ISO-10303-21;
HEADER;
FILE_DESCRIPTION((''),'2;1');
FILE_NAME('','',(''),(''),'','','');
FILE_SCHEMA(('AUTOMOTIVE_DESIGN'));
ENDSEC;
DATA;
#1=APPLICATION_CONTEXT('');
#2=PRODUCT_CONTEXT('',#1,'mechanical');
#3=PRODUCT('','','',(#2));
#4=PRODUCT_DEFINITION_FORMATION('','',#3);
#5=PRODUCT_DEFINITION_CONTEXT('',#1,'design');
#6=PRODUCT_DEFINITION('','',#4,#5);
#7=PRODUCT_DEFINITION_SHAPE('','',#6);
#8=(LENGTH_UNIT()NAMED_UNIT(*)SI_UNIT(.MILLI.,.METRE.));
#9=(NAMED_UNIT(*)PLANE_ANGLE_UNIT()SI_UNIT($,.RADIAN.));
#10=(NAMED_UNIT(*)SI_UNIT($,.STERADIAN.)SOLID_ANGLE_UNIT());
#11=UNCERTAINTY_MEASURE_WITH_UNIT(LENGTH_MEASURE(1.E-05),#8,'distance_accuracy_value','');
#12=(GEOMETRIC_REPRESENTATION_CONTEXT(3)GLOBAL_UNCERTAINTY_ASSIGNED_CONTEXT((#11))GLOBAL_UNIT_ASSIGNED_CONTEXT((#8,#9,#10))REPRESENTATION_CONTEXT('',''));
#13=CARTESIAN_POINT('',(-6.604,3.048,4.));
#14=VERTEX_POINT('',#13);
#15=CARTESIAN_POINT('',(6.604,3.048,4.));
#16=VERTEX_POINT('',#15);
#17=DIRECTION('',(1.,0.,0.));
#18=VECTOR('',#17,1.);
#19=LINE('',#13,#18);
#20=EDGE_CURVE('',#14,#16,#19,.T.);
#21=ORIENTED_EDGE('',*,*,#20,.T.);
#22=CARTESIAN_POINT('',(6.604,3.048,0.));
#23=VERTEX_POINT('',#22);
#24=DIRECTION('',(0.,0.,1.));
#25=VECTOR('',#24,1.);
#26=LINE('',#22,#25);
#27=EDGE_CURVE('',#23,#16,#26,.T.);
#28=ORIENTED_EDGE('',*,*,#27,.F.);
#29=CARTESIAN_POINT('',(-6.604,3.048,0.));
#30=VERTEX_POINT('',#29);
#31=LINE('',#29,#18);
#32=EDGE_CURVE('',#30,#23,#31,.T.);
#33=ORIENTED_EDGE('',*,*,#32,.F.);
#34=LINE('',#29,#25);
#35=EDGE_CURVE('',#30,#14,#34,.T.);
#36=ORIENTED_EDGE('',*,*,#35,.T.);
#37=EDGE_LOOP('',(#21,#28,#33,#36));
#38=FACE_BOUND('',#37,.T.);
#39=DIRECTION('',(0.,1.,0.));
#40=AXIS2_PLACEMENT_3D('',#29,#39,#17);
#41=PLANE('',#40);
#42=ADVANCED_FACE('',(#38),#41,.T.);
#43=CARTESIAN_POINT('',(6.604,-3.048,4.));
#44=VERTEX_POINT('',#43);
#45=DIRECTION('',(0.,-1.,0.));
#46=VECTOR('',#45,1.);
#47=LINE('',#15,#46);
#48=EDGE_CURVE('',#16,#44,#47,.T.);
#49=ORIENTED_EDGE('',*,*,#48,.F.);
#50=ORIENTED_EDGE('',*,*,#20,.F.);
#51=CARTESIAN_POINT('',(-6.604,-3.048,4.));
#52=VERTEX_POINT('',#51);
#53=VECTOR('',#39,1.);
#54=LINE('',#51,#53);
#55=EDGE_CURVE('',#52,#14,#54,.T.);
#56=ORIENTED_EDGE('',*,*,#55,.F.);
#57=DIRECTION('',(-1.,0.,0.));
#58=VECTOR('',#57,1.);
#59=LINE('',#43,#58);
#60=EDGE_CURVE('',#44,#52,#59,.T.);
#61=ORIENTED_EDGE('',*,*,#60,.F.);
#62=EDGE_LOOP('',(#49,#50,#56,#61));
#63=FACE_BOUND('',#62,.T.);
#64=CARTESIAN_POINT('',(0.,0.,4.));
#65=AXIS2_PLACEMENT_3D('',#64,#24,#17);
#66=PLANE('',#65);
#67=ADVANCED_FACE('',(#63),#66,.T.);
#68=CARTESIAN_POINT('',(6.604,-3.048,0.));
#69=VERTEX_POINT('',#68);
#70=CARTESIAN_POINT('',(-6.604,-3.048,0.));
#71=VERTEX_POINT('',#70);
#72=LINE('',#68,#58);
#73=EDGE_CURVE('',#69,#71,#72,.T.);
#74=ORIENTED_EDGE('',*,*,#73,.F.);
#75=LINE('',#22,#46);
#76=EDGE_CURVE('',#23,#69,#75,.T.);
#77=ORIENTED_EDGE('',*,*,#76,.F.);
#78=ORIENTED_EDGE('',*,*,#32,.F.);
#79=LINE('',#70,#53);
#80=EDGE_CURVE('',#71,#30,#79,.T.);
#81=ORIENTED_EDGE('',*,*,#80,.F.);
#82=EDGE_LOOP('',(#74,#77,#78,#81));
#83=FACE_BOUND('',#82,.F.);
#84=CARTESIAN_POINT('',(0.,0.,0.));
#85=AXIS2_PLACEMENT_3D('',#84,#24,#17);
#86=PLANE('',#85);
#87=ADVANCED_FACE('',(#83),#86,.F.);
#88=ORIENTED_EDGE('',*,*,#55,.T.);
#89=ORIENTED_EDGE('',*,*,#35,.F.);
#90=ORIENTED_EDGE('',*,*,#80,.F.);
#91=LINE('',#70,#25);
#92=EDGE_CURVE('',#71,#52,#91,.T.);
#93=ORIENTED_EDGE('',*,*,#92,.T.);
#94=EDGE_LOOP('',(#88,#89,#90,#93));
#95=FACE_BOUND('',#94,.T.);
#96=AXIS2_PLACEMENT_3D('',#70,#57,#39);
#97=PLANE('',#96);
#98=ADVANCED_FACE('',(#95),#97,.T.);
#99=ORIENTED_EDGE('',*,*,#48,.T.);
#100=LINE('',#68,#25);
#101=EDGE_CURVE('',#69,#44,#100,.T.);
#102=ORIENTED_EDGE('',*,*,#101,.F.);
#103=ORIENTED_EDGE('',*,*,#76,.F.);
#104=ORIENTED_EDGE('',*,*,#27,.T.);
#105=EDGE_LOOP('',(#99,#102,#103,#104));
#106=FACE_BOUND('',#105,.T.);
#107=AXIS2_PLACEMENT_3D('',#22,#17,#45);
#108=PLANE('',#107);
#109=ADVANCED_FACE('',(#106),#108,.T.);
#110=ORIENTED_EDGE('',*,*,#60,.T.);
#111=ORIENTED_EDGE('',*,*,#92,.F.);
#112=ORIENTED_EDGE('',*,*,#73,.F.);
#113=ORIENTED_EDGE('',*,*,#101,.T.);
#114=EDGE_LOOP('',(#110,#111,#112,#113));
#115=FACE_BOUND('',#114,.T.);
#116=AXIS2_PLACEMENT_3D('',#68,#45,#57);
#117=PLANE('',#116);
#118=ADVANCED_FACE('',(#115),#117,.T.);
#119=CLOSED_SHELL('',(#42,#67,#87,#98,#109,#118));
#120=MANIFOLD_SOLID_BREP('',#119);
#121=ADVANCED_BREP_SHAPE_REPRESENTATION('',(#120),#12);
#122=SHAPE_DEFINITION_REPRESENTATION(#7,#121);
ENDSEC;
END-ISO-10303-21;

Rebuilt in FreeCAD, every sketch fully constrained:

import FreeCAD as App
import Part
import Sketcher
from FreeCAD import Vector
Q = App.Units.Quantity


def add_polygon(sketch, points):
    """Adds a closed chain of lines whose ends are joined by coincident constraints."""
    first, n = sketch.GeometryCount, len(points)
    for a, b in zip(points, points[1:] + points[:1]):
        sketch.addGeometry(Part.LineSegment(App.Vector(*a, 0), App.Vector(*b, 0)), False)
    for i in range(n):
        sketch.addConstraint(Sketcher.Constraint("Coincident", first + i, 2, first + (i + 1) % n, 1))

doc = App.newDocument("Part")
params = doc.addObject("Spreadsheet::Sheet", "Params")
for row, (alias, value) in enumerate([
    ("sketch1_width", "0.52 in"),
    ("sketch1_height", "0.24 in"),
    ("pad1_length", "4 mm"),
], start=1):
    params.set(f"A{row}", alias)
    params.set(f"B{row}", "=" + value)
    params.setAlias(f"B{row}", alias)

body = doc.addObject("PartDesign::Body", "Body")

# Sketch on XY plane
sketch1 = doc.addObject("Sketcher::SketchObject", "Sketch")
body.addObject(sketch1)
sketch1.AttachmentSupport = (doc.XY_Plane, [""])
sketch1.MapMode = "FlatFace"
add_polygon(sketch1, [(7, 3), (-7, 3), (-7, -3), (7, -3)])  # lines 0-3
sketch1.addConstraint(Sketcher.Constraint("Horizontal", 0))
sketch1.addConstraint(Sketcher.Constraint("Vertical", 1))
sketch1.addConstraint(Sketcher.Constraint("Horizontal", 2))
sketch1.addConstraint(Sketcher.Constraint("Vertical", 3))
sketch1.addConstraint(Sketcher.Constraint("Symmetric", 0, 2, 2, 2, -1, 1))
sketch1.addConstraint(Sketcher.Constraint("DistanceX", 0, 2, 0, 1, Q("0.52 in")))
sketch1.addConstraint(Sketcher.Constraint("DistanceY", 1, 2, 1, 1, Q("0.24 in")))
sketch1.setExpression("Constraints[9]", "Params.sketch1_width")
sketch1.setExpression("Constraints[10]", "Params.sketch1_height")
pad1 = doc.addObject("PartDesign::Pad", "Pad")
body.addObject(pad1)
pad1.Profile = sketch1
pad1.setExpression("Length", "Params.pad1_length")

doc.recompute()
